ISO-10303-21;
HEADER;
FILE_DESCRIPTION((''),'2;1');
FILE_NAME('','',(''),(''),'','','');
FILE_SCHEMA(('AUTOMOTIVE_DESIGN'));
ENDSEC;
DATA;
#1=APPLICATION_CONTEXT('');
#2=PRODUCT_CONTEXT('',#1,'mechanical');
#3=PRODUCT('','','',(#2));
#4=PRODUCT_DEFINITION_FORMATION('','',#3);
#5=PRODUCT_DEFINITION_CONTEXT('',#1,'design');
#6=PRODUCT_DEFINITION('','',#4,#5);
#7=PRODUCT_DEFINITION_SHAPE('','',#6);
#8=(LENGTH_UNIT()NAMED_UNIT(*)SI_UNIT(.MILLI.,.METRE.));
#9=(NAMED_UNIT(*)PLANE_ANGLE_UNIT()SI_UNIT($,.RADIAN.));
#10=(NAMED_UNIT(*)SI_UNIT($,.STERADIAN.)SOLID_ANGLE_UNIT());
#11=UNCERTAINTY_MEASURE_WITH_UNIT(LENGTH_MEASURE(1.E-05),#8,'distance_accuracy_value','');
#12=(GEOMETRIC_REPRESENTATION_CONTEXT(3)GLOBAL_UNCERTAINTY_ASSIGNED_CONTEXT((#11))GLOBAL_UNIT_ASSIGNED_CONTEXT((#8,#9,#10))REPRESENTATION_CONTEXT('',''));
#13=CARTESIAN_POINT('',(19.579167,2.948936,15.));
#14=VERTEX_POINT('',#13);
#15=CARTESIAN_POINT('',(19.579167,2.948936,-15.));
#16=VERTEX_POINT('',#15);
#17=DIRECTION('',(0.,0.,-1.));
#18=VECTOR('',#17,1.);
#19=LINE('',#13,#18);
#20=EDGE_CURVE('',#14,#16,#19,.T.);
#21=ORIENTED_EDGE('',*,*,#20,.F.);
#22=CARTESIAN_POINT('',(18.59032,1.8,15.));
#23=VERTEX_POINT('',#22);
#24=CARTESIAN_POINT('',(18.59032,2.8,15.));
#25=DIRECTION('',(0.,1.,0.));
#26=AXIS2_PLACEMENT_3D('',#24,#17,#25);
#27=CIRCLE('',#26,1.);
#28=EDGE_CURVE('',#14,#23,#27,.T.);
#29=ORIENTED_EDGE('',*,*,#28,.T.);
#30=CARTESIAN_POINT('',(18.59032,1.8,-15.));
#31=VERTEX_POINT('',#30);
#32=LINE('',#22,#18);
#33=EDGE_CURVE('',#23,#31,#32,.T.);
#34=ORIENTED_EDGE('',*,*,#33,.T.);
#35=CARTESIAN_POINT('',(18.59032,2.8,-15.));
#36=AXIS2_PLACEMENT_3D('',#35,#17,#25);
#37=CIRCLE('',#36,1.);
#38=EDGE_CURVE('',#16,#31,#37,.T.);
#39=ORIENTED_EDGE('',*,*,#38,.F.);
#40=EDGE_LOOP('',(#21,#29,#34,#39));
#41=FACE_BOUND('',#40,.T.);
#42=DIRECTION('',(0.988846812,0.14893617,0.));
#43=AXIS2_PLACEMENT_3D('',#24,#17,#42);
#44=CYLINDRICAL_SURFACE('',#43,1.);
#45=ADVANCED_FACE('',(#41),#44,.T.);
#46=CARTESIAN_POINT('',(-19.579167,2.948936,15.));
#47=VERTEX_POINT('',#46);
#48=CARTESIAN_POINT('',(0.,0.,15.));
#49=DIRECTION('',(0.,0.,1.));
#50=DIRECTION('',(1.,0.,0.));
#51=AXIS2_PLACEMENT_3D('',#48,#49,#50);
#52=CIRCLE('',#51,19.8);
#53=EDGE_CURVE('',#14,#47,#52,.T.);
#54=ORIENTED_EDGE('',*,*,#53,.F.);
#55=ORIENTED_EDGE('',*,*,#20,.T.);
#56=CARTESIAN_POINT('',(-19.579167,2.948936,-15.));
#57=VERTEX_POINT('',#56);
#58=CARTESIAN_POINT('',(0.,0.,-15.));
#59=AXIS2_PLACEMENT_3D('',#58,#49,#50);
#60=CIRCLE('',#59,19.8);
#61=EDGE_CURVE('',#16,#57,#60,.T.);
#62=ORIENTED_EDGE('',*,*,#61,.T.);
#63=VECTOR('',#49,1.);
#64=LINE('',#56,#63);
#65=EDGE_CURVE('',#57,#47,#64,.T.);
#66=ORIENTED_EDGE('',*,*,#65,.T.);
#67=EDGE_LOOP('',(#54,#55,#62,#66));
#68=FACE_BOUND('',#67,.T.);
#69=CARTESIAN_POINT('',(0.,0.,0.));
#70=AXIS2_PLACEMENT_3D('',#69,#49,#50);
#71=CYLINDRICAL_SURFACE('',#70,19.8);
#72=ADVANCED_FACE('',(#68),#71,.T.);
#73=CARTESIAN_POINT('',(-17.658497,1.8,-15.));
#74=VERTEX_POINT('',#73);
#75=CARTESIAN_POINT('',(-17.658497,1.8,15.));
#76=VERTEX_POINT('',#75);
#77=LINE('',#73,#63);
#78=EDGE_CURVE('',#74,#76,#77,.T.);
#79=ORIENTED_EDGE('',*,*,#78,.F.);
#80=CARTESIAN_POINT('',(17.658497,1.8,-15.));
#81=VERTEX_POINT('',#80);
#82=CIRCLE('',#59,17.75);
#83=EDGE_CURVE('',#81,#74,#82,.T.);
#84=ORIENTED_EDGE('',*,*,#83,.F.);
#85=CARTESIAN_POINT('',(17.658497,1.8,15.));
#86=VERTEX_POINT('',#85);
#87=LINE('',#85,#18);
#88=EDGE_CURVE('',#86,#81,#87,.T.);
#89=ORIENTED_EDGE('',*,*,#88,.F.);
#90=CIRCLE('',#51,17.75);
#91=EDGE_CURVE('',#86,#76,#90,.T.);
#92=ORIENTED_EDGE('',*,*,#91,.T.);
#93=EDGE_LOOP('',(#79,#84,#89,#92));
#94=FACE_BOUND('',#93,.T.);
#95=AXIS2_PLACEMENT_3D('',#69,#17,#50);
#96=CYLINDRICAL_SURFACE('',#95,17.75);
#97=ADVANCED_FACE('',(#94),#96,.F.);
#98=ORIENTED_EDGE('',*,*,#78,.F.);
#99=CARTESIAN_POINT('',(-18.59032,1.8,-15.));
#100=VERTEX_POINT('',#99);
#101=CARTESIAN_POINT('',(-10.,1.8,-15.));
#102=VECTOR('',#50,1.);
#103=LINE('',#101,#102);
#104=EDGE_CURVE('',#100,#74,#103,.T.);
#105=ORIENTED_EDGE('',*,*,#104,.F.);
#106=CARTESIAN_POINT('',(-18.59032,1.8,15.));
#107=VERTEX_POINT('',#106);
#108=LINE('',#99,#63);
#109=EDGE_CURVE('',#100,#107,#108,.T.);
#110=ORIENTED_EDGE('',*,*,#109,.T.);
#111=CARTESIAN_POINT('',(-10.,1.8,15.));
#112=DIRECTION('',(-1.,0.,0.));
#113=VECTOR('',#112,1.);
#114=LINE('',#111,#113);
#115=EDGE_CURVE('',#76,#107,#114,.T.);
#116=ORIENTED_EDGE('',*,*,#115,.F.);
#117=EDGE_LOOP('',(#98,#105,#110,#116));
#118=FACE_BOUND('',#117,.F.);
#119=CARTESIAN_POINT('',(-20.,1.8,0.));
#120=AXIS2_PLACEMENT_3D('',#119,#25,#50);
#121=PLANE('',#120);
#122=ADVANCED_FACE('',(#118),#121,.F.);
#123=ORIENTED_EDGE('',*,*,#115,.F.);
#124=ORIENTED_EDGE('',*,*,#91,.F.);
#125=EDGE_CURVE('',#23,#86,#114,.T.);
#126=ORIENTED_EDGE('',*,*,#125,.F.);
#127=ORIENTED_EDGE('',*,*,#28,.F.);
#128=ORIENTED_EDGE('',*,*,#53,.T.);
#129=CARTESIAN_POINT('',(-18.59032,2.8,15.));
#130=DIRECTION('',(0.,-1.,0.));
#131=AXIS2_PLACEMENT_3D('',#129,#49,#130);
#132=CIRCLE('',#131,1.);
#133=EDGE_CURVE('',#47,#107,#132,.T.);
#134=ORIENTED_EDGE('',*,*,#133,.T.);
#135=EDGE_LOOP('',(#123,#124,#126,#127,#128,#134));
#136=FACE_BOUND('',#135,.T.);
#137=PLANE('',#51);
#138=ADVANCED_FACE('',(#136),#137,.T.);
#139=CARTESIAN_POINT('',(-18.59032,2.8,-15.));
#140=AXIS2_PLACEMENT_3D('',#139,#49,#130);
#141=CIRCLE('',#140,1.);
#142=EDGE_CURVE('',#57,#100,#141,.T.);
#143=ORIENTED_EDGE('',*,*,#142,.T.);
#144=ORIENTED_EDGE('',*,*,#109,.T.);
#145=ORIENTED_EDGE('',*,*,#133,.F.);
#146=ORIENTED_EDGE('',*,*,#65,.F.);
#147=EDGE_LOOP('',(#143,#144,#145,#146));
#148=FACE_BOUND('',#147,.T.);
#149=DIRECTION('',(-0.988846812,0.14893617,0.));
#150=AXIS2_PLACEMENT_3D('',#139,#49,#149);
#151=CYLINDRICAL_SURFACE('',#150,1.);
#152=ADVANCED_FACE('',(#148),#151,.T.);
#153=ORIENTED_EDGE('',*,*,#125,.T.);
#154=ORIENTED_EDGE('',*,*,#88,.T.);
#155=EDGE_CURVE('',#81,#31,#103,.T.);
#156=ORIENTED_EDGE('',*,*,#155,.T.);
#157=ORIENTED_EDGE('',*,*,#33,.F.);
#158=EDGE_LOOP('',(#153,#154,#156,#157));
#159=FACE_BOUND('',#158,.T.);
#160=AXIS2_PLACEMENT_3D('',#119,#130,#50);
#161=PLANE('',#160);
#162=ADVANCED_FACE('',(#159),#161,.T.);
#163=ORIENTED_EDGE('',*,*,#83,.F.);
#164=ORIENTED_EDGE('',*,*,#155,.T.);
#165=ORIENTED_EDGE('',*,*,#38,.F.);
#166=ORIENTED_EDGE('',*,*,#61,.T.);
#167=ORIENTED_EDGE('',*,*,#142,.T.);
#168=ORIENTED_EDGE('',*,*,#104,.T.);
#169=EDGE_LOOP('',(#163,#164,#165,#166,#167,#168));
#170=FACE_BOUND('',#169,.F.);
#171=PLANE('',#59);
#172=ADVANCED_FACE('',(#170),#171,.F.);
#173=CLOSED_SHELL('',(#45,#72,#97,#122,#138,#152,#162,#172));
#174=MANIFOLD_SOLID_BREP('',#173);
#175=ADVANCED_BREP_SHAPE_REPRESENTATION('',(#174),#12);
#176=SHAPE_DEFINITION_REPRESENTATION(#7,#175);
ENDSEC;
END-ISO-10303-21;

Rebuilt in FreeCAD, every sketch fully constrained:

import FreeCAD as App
import Part
import Sketcher

V = App.Vector


def edges_at(feature, points):
    """Names of the edges that pass closest to the given points."""
    edges = feature.Shape.Edges
    near = lambda p: min(range(len(edges)), key=lambda i: edges[i].distToShape(Part.Vertex(*p))[0])
    return sorted({f"Edge{near(p) + 1}" for p in points})

doc = App.newDocument("Part")
body = doc.addObject("PartDesign::Body", "Body")

# Sketch on XY plane
sketch1 = body.newObject("Sketcher::SketchObject", "Sketch")
sketch1.AttachmentSupport = (doc.getObject("XY_Plane"), [""])
sketch1.MapMode = "FlatFace"
sketch1.addGeometry([
    Part.Circle(V(0, 0, 0), V(0, 0, 1), 19.8),
    Part.Circle(V(0, 0, 0), V(0, 0, 1), 17.75),
], False)
sketch1.addConstraint([
    Sketcher.Constraint("Coincident", 0, 3, -1, 1),
    Sketcher.Constraint("Coincident", 1, 3, -1, 1),
    Sketcher.Constraint("Diameter", 0, 39.6),
    Sketcher.Constraint("Diameter", 1, 35.5),
])
pad1 = body.newObject("PartDesign::Pad", "Pad")
pad1.Profile = sketch1
pad1.Length = 30
pad1.Midplane = True

# Sketch on XY plane
sketch2 = body.newObject("Sketcher::SketchObject", "Sketch001")
sketch2.AttachmentSupport = (doc.getObject("XY_Plane"), [""])
sketch2.MapMode = "FlatFace"
sketch2.addGeometry([
    Part.LineSegment(V(-20, 1.8, 0), V(-20, -20.2, 0)),
    Part.LineSegment(V(-20, -20.2, 0), V(20, -20.2, 0)),
    Part.LineSegment(V(20, -20.2, 0), V(20, 1.8, 0)),
    Part.LineSegment(V(20, 1.8, 0), V(-20, 1.8, 0)),
], False)
sketch2.addConstraint([
    Sketcher.Constraint("Coincident", 0, 2, 1, 1),
    Sketcher.Constraint("Coincident", 1, 2, 2, 1),
    Sketcher.Constraint("Coincident", 2, 2, 3, 1),
    Sketcher.Constraint("Coincident", 3, 2, 0, 1),
    Sketcher.Constraint("Vertical", 0),
    Sketcher.Constraint("Horizontal", 1),
    Sketcher.Constraint("Vertical", 2),
    Sketcher.Constraint("Horizontal", 3),
    Sketcher.Constraint("DistanceX", 1, 1, 1, 2, 40.0),
    Sketcher.Constraint("DistanceY", 0, 2, 0, 1, 22.0),
    Sketcher.Constraint("DistanceX", 0, 2, -1, 1, 20.0),
    Sketcher.Constraint("DistanceY", 0, 2, -1, 1, 20.2),
])
pocket1 = body.newObject("PartDesign::Pocket", "Pocket")
pocket1.Profile = sketch2
pocket1.Type = "ThroughAll"
pocket1.Midplane = True
doc.recompute()

fillet = body.newObject("PartDesign::Fillet", "Fillet")
fillet.Base = (pocket1, edges_at(pocket1, [(-19.718, 1.8, 0), (19.718, 1.8, 0)]))
fillet.Radius = 1

doc.recompute()
